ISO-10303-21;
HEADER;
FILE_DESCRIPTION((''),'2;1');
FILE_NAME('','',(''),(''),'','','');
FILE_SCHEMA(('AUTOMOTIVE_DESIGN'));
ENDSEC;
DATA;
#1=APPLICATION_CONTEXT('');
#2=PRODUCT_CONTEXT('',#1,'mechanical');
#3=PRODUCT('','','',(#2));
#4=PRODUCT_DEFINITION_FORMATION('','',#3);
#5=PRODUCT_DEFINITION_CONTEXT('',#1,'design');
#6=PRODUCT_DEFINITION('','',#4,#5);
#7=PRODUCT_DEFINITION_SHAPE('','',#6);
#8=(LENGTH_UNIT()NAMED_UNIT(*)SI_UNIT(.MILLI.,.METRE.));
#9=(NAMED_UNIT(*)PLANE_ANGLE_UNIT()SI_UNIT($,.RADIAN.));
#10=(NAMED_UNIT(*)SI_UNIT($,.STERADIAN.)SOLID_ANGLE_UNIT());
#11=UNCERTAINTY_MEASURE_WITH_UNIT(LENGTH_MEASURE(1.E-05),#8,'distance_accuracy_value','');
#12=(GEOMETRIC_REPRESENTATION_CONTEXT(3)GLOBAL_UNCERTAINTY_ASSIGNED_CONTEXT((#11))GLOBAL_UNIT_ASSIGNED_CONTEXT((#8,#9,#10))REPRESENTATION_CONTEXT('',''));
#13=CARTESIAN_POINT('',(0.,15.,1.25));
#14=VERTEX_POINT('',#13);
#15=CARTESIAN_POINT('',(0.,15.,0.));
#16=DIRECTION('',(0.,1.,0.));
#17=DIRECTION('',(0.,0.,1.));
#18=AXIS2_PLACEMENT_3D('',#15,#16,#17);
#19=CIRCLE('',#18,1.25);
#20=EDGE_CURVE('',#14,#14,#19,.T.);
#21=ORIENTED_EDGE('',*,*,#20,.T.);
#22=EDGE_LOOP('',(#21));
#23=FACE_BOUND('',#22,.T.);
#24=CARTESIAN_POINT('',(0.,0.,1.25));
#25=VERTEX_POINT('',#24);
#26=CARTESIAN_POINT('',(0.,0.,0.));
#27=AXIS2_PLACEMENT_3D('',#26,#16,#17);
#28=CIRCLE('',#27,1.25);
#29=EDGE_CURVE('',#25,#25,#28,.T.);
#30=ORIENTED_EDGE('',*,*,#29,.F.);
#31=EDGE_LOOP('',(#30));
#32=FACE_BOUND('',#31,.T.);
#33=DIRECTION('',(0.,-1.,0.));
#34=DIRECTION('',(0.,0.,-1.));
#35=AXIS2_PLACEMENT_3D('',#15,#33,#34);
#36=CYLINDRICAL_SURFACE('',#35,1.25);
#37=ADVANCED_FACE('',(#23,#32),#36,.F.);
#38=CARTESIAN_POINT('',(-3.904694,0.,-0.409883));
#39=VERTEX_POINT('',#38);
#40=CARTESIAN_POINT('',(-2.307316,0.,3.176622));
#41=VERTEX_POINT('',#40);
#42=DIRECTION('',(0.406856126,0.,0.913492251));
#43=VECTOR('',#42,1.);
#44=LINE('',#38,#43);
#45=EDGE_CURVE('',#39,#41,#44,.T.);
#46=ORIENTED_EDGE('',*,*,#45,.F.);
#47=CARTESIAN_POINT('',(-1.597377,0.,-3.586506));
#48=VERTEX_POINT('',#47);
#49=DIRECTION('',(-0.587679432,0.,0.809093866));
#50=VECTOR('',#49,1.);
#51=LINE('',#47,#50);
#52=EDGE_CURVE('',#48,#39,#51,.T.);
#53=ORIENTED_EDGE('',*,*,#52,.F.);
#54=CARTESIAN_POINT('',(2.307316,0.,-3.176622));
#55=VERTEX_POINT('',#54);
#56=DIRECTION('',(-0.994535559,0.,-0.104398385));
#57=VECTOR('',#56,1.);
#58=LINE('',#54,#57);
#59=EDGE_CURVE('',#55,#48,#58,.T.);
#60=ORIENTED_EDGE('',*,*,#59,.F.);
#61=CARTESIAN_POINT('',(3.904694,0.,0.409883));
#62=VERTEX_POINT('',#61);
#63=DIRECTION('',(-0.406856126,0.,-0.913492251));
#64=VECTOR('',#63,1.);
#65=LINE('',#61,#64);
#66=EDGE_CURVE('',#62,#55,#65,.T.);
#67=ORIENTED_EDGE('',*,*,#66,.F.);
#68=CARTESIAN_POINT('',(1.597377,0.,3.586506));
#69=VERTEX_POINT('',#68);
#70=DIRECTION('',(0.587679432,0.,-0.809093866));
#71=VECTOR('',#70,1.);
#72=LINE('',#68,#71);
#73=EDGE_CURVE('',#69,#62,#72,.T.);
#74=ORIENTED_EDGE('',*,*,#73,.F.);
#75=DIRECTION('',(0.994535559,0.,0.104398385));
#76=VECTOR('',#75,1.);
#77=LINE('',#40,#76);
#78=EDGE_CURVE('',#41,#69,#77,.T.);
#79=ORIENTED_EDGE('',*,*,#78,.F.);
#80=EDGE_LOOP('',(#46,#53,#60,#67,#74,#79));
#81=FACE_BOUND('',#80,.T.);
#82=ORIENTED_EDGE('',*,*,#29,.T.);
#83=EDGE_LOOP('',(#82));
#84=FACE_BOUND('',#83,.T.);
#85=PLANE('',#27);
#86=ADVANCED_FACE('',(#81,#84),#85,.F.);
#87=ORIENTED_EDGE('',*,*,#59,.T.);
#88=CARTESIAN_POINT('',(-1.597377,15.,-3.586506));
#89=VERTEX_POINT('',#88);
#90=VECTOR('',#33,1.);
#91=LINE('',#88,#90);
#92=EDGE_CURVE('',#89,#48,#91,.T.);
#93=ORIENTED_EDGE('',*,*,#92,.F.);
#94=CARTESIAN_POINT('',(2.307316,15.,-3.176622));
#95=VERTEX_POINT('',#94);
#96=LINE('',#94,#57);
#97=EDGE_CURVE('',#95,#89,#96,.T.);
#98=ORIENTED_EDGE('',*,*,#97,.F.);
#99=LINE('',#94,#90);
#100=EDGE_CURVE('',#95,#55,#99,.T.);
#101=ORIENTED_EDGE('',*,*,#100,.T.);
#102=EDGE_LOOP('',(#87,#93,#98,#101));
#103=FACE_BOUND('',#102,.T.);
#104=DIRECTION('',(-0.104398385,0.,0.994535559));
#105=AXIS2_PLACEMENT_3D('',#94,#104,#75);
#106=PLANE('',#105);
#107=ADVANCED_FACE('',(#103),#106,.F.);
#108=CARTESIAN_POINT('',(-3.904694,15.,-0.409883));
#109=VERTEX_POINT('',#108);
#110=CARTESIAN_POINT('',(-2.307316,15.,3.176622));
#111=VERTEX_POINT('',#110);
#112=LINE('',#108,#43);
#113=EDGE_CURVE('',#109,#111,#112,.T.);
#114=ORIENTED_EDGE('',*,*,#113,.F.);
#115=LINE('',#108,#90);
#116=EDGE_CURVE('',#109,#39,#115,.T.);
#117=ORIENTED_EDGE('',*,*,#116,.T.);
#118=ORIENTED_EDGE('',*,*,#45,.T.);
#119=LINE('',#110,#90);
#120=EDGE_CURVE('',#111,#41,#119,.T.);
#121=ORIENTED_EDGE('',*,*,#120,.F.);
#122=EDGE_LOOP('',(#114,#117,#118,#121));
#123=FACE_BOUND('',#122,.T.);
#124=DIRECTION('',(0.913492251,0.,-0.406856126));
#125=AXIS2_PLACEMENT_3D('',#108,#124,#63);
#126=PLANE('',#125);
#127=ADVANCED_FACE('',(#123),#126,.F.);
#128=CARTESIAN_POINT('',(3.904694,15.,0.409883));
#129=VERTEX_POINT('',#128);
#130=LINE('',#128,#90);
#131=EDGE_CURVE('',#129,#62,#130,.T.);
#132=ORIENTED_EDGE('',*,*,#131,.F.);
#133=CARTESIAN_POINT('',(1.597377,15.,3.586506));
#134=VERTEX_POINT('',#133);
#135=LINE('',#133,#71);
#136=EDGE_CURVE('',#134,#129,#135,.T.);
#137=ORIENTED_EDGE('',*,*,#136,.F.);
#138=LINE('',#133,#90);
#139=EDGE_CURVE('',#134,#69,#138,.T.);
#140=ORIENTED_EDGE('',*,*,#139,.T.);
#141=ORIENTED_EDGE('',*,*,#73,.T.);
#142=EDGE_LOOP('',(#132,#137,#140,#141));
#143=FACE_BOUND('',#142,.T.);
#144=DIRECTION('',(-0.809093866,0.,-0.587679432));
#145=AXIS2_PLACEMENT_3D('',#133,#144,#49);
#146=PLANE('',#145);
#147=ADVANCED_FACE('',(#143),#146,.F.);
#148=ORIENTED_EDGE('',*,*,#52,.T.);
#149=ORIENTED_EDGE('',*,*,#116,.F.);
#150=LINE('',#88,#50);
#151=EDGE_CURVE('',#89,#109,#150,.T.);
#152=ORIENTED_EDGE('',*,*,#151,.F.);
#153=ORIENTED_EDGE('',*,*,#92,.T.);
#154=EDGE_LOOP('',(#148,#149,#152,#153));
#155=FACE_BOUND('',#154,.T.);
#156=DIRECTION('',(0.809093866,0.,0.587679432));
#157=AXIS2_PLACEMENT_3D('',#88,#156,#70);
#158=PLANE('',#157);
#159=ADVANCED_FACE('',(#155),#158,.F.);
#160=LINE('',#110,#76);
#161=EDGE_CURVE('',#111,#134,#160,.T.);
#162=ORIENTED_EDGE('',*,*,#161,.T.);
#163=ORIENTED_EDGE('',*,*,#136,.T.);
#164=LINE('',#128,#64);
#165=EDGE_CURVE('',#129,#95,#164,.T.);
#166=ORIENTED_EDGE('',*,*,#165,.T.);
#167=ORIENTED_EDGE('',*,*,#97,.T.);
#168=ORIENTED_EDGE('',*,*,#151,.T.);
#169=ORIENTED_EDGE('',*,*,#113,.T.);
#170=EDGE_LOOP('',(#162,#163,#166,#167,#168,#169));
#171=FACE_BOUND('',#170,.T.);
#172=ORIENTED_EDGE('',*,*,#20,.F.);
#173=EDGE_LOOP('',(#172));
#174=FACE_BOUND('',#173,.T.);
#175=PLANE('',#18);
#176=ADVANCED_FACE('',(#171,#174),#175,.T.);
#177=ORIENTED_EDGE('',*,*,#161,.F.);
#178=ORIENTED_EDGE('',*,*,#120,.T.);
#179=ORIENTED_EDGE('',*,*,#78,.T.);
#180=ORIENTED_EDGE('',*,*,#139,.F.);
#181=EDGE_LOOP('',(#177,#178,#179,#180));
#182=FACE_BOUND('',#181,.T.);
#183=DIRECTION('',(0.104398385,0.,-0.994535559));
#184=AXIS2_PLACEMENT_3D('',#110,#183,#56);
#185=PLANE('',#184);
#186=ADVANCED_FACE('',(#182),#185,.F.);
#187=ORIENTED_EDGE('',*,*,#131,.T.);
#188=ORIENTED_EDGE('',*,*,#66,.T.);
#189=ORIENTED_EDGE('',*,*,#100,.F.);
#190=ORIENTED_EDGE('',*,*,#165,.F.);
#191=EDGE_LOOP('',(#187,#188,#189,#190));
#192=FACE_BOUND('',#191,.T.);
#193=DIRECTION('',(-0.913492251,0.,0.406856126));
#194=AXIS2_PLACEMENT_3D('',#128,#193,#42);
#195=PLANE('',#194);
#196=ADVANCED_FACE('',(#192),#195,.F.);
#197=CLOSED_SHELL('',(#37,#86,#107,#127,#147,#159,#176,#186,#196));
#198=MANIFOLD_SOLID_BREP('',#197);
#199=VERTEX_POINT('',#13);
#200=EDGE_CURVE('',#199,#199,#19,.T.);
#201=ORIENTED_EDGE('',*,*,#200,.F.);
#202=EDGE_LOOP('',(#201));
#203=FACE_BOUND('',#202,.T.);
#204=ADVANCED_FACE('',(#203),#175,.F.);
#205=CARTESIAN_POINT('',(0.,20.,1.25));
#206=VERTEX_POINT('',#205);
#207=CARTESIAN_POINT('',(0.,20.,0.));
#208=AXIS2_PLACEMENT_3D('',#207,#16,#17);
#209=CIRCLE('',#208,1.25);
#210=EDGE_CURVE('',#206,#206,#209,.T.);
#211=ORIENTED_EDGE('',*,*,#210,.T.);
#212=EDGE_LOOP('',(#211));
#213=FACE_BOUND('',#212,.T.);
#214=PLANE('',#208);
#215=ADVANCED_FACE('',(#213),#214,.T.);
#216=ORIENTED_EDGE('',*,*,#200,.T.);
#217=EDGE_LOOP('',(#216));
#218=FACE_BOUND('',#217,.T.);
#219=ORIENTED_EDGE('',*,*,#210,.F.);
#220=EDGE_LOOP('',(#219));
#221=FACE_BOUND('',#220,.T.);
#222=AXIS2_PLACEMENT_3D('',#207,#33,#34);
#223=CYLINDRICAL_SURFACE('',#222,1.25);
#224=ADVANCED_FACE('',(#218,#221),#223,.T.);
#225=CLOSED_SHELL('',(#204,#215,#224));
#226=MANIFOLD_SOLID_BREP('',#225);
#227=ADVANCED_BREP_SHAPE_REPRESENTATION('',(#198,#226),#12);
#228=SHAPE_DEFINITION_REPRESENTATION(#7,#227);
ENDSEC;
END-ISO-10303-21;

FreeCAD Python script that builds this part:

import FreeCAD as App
import Part
import Sketcher

V = App.Vector

doc = App.newDocument("Part")
params = doc.addObject("Spreadsheet::Sheet", "Params")
for row, (alias, value) in enumerate([
    ("sketch1_diameter", "2.5 mm"),
    ("pad1_length", "15 mm"),
    ("sketch2_diameter", "2.5 mm"),
    ("pad2_length", "5 mm"),
], start=1):
    params.set(f"A{row}", alias)
    params.set(f"B{row}", "=" + value)
    params.setAlias(f"B{row}", alias)

body = doc.addObject("PartDesign::Body", "Body")

sketch1 = doc.addObject("Sketcher::SketchObject", "Sketch")
body.addObject(sketch1)
sketch1.AttachmentSupport = (doc.XZ_Plane, [""])
sketch1.MapMode = "FlatFace"
sketch1.addGeometry(Part.LineSegment(V(2.3, -3.2, 0), V(-1.6, -3.6, 0)), False)
sketch1.addGeometry(Part.LineSegment(V(-1.6, -3.6, 0), V(-3.9, -0.4, 0)), False)
sketch1.addGeometry(Part.LineSegment(V(-3.9, -0.4, 0), V(-2.3, 3.2, 0)), False)
sketch1.addGeometry(Part.LineSegment(V(-2.3, 3.2, 0), V(1.6, 3.6, 0)), False)
sketch1.addGeometry(Part.LineSegment(V(1.6, 3.6, 0), V(3.9, 0.4, 0)), False)
sketch1.addGeometry(Part.LineSegment(V(3.9, 0.4, 0), V(2.3, -3.2, 0)), False)
sketch1.addGeometry(Part.Circle(V(0, 0, 0), V(0, 0, 1), 1.2), False)
sketch1.addConstraint(Sketcher.Constraint("Coincident", 0, 2, 1, 1))
sketch1.addConstraint(Sketcher.Constraint("Coincident", 1, 2, 2, 1))
sketch1.addConstraint(Sketcher.Constraint("Coincident", 2, 2, 3, 1))
sketch1.addConstraint(Sketcher.Constraint("Coincident", 3, 2, 4, 1))
sketch1.addConstraint(Sketcher.Constraint("Coincident", 4, 2, 5, 1))
sketch1.addConstraint(Sketcher.Constraint("Coincident", 5, 2, 0, 1))
sketch1.addConstraint(Sketcher.Constraint("Coincident", 6, 3, -1, 1))
sketch1.addConstraint(Sketcher.Constraint("Symmetric", 0, 2, 3, 2, -1, 1))
sketch1.addConstraint(Sketcher.Constraint("Symmetric", 1, 2, 4, 2, -1, 1))
sketch1.addConstraint(Sketcher.Constraint("Symmetric", 2, 2, 5, 2, -1, 1))
sketch1.addConstraint(Sketcher.Constraint("Equal", 0, 1))
sketch1.addConstraint(Sketcher.Constraint("Equal", 1, 2))
sketch1.addConstraint(Sketcher.Constraint("Diameter", 6, 2.5))
sketch1.addConstraint(Sketcher.Constraint("DistanceX", 2, 2, 0, 2, 0.709939))
sketch1.addConstraint(Sketcher.Constraint("DistanceX", 1, 2, 3, 2, 5.502071))
sketch1.addConstraint(Sketcher.Constraint("DistanceY", 1, 2, 3, 2, 3.996389))
sketch1.addConstraint(Sketcher.Constraint("DistanceY", 0, 2, 3, 2, 7.173011))
sketch1.setExpression("Constraints[12]", "Params.sketch1_diameter")
pad1 = doc.addObject("PartDesign::Pad", "Pad")
body.addObject(pad1)
pad1.Profile = sketch1
pad1.setExpression("Length", "Params.pad1_length")
pad1.Reversed = True
body2 = doc.addObject("PartDesign::Body", "Body001")

sketch2 = doc.addObject("Sketcher::SketchObject", "Sketch001")
body2.addObject(sketch2)
sketch2.AttachmentSupport = (doc.getObject("XZ_Plane001"), [""])
sketch2.MapMode = "FlatFace"
sketch2.AttachmentOffset = App.Placement(V(0, 0, -15), App.Rotation())
sketch2.addGeometry(Part.Circle(V(0, 0, 0), V(0, 0, 1), 1.2), False)
sketch2.addConstraint(Sketcher.Constraint("Coincident", 0, 3, -1, 1))
sketch2.addConstraint(Sketcher.Constraint("Diameter", 0, 2.5))
sketch2.setExpression("Constraints[1]", "Params.sketch2_diameter")
pad2 = doc.addObject("PartDesign::Pad", "Pad001")
body2.addObject(pad2)
pad2.Profile = sketch2
pad2.setExpression("Length", "Params.pad2_length")
pad2.Reversed = True

doc.recompute()
